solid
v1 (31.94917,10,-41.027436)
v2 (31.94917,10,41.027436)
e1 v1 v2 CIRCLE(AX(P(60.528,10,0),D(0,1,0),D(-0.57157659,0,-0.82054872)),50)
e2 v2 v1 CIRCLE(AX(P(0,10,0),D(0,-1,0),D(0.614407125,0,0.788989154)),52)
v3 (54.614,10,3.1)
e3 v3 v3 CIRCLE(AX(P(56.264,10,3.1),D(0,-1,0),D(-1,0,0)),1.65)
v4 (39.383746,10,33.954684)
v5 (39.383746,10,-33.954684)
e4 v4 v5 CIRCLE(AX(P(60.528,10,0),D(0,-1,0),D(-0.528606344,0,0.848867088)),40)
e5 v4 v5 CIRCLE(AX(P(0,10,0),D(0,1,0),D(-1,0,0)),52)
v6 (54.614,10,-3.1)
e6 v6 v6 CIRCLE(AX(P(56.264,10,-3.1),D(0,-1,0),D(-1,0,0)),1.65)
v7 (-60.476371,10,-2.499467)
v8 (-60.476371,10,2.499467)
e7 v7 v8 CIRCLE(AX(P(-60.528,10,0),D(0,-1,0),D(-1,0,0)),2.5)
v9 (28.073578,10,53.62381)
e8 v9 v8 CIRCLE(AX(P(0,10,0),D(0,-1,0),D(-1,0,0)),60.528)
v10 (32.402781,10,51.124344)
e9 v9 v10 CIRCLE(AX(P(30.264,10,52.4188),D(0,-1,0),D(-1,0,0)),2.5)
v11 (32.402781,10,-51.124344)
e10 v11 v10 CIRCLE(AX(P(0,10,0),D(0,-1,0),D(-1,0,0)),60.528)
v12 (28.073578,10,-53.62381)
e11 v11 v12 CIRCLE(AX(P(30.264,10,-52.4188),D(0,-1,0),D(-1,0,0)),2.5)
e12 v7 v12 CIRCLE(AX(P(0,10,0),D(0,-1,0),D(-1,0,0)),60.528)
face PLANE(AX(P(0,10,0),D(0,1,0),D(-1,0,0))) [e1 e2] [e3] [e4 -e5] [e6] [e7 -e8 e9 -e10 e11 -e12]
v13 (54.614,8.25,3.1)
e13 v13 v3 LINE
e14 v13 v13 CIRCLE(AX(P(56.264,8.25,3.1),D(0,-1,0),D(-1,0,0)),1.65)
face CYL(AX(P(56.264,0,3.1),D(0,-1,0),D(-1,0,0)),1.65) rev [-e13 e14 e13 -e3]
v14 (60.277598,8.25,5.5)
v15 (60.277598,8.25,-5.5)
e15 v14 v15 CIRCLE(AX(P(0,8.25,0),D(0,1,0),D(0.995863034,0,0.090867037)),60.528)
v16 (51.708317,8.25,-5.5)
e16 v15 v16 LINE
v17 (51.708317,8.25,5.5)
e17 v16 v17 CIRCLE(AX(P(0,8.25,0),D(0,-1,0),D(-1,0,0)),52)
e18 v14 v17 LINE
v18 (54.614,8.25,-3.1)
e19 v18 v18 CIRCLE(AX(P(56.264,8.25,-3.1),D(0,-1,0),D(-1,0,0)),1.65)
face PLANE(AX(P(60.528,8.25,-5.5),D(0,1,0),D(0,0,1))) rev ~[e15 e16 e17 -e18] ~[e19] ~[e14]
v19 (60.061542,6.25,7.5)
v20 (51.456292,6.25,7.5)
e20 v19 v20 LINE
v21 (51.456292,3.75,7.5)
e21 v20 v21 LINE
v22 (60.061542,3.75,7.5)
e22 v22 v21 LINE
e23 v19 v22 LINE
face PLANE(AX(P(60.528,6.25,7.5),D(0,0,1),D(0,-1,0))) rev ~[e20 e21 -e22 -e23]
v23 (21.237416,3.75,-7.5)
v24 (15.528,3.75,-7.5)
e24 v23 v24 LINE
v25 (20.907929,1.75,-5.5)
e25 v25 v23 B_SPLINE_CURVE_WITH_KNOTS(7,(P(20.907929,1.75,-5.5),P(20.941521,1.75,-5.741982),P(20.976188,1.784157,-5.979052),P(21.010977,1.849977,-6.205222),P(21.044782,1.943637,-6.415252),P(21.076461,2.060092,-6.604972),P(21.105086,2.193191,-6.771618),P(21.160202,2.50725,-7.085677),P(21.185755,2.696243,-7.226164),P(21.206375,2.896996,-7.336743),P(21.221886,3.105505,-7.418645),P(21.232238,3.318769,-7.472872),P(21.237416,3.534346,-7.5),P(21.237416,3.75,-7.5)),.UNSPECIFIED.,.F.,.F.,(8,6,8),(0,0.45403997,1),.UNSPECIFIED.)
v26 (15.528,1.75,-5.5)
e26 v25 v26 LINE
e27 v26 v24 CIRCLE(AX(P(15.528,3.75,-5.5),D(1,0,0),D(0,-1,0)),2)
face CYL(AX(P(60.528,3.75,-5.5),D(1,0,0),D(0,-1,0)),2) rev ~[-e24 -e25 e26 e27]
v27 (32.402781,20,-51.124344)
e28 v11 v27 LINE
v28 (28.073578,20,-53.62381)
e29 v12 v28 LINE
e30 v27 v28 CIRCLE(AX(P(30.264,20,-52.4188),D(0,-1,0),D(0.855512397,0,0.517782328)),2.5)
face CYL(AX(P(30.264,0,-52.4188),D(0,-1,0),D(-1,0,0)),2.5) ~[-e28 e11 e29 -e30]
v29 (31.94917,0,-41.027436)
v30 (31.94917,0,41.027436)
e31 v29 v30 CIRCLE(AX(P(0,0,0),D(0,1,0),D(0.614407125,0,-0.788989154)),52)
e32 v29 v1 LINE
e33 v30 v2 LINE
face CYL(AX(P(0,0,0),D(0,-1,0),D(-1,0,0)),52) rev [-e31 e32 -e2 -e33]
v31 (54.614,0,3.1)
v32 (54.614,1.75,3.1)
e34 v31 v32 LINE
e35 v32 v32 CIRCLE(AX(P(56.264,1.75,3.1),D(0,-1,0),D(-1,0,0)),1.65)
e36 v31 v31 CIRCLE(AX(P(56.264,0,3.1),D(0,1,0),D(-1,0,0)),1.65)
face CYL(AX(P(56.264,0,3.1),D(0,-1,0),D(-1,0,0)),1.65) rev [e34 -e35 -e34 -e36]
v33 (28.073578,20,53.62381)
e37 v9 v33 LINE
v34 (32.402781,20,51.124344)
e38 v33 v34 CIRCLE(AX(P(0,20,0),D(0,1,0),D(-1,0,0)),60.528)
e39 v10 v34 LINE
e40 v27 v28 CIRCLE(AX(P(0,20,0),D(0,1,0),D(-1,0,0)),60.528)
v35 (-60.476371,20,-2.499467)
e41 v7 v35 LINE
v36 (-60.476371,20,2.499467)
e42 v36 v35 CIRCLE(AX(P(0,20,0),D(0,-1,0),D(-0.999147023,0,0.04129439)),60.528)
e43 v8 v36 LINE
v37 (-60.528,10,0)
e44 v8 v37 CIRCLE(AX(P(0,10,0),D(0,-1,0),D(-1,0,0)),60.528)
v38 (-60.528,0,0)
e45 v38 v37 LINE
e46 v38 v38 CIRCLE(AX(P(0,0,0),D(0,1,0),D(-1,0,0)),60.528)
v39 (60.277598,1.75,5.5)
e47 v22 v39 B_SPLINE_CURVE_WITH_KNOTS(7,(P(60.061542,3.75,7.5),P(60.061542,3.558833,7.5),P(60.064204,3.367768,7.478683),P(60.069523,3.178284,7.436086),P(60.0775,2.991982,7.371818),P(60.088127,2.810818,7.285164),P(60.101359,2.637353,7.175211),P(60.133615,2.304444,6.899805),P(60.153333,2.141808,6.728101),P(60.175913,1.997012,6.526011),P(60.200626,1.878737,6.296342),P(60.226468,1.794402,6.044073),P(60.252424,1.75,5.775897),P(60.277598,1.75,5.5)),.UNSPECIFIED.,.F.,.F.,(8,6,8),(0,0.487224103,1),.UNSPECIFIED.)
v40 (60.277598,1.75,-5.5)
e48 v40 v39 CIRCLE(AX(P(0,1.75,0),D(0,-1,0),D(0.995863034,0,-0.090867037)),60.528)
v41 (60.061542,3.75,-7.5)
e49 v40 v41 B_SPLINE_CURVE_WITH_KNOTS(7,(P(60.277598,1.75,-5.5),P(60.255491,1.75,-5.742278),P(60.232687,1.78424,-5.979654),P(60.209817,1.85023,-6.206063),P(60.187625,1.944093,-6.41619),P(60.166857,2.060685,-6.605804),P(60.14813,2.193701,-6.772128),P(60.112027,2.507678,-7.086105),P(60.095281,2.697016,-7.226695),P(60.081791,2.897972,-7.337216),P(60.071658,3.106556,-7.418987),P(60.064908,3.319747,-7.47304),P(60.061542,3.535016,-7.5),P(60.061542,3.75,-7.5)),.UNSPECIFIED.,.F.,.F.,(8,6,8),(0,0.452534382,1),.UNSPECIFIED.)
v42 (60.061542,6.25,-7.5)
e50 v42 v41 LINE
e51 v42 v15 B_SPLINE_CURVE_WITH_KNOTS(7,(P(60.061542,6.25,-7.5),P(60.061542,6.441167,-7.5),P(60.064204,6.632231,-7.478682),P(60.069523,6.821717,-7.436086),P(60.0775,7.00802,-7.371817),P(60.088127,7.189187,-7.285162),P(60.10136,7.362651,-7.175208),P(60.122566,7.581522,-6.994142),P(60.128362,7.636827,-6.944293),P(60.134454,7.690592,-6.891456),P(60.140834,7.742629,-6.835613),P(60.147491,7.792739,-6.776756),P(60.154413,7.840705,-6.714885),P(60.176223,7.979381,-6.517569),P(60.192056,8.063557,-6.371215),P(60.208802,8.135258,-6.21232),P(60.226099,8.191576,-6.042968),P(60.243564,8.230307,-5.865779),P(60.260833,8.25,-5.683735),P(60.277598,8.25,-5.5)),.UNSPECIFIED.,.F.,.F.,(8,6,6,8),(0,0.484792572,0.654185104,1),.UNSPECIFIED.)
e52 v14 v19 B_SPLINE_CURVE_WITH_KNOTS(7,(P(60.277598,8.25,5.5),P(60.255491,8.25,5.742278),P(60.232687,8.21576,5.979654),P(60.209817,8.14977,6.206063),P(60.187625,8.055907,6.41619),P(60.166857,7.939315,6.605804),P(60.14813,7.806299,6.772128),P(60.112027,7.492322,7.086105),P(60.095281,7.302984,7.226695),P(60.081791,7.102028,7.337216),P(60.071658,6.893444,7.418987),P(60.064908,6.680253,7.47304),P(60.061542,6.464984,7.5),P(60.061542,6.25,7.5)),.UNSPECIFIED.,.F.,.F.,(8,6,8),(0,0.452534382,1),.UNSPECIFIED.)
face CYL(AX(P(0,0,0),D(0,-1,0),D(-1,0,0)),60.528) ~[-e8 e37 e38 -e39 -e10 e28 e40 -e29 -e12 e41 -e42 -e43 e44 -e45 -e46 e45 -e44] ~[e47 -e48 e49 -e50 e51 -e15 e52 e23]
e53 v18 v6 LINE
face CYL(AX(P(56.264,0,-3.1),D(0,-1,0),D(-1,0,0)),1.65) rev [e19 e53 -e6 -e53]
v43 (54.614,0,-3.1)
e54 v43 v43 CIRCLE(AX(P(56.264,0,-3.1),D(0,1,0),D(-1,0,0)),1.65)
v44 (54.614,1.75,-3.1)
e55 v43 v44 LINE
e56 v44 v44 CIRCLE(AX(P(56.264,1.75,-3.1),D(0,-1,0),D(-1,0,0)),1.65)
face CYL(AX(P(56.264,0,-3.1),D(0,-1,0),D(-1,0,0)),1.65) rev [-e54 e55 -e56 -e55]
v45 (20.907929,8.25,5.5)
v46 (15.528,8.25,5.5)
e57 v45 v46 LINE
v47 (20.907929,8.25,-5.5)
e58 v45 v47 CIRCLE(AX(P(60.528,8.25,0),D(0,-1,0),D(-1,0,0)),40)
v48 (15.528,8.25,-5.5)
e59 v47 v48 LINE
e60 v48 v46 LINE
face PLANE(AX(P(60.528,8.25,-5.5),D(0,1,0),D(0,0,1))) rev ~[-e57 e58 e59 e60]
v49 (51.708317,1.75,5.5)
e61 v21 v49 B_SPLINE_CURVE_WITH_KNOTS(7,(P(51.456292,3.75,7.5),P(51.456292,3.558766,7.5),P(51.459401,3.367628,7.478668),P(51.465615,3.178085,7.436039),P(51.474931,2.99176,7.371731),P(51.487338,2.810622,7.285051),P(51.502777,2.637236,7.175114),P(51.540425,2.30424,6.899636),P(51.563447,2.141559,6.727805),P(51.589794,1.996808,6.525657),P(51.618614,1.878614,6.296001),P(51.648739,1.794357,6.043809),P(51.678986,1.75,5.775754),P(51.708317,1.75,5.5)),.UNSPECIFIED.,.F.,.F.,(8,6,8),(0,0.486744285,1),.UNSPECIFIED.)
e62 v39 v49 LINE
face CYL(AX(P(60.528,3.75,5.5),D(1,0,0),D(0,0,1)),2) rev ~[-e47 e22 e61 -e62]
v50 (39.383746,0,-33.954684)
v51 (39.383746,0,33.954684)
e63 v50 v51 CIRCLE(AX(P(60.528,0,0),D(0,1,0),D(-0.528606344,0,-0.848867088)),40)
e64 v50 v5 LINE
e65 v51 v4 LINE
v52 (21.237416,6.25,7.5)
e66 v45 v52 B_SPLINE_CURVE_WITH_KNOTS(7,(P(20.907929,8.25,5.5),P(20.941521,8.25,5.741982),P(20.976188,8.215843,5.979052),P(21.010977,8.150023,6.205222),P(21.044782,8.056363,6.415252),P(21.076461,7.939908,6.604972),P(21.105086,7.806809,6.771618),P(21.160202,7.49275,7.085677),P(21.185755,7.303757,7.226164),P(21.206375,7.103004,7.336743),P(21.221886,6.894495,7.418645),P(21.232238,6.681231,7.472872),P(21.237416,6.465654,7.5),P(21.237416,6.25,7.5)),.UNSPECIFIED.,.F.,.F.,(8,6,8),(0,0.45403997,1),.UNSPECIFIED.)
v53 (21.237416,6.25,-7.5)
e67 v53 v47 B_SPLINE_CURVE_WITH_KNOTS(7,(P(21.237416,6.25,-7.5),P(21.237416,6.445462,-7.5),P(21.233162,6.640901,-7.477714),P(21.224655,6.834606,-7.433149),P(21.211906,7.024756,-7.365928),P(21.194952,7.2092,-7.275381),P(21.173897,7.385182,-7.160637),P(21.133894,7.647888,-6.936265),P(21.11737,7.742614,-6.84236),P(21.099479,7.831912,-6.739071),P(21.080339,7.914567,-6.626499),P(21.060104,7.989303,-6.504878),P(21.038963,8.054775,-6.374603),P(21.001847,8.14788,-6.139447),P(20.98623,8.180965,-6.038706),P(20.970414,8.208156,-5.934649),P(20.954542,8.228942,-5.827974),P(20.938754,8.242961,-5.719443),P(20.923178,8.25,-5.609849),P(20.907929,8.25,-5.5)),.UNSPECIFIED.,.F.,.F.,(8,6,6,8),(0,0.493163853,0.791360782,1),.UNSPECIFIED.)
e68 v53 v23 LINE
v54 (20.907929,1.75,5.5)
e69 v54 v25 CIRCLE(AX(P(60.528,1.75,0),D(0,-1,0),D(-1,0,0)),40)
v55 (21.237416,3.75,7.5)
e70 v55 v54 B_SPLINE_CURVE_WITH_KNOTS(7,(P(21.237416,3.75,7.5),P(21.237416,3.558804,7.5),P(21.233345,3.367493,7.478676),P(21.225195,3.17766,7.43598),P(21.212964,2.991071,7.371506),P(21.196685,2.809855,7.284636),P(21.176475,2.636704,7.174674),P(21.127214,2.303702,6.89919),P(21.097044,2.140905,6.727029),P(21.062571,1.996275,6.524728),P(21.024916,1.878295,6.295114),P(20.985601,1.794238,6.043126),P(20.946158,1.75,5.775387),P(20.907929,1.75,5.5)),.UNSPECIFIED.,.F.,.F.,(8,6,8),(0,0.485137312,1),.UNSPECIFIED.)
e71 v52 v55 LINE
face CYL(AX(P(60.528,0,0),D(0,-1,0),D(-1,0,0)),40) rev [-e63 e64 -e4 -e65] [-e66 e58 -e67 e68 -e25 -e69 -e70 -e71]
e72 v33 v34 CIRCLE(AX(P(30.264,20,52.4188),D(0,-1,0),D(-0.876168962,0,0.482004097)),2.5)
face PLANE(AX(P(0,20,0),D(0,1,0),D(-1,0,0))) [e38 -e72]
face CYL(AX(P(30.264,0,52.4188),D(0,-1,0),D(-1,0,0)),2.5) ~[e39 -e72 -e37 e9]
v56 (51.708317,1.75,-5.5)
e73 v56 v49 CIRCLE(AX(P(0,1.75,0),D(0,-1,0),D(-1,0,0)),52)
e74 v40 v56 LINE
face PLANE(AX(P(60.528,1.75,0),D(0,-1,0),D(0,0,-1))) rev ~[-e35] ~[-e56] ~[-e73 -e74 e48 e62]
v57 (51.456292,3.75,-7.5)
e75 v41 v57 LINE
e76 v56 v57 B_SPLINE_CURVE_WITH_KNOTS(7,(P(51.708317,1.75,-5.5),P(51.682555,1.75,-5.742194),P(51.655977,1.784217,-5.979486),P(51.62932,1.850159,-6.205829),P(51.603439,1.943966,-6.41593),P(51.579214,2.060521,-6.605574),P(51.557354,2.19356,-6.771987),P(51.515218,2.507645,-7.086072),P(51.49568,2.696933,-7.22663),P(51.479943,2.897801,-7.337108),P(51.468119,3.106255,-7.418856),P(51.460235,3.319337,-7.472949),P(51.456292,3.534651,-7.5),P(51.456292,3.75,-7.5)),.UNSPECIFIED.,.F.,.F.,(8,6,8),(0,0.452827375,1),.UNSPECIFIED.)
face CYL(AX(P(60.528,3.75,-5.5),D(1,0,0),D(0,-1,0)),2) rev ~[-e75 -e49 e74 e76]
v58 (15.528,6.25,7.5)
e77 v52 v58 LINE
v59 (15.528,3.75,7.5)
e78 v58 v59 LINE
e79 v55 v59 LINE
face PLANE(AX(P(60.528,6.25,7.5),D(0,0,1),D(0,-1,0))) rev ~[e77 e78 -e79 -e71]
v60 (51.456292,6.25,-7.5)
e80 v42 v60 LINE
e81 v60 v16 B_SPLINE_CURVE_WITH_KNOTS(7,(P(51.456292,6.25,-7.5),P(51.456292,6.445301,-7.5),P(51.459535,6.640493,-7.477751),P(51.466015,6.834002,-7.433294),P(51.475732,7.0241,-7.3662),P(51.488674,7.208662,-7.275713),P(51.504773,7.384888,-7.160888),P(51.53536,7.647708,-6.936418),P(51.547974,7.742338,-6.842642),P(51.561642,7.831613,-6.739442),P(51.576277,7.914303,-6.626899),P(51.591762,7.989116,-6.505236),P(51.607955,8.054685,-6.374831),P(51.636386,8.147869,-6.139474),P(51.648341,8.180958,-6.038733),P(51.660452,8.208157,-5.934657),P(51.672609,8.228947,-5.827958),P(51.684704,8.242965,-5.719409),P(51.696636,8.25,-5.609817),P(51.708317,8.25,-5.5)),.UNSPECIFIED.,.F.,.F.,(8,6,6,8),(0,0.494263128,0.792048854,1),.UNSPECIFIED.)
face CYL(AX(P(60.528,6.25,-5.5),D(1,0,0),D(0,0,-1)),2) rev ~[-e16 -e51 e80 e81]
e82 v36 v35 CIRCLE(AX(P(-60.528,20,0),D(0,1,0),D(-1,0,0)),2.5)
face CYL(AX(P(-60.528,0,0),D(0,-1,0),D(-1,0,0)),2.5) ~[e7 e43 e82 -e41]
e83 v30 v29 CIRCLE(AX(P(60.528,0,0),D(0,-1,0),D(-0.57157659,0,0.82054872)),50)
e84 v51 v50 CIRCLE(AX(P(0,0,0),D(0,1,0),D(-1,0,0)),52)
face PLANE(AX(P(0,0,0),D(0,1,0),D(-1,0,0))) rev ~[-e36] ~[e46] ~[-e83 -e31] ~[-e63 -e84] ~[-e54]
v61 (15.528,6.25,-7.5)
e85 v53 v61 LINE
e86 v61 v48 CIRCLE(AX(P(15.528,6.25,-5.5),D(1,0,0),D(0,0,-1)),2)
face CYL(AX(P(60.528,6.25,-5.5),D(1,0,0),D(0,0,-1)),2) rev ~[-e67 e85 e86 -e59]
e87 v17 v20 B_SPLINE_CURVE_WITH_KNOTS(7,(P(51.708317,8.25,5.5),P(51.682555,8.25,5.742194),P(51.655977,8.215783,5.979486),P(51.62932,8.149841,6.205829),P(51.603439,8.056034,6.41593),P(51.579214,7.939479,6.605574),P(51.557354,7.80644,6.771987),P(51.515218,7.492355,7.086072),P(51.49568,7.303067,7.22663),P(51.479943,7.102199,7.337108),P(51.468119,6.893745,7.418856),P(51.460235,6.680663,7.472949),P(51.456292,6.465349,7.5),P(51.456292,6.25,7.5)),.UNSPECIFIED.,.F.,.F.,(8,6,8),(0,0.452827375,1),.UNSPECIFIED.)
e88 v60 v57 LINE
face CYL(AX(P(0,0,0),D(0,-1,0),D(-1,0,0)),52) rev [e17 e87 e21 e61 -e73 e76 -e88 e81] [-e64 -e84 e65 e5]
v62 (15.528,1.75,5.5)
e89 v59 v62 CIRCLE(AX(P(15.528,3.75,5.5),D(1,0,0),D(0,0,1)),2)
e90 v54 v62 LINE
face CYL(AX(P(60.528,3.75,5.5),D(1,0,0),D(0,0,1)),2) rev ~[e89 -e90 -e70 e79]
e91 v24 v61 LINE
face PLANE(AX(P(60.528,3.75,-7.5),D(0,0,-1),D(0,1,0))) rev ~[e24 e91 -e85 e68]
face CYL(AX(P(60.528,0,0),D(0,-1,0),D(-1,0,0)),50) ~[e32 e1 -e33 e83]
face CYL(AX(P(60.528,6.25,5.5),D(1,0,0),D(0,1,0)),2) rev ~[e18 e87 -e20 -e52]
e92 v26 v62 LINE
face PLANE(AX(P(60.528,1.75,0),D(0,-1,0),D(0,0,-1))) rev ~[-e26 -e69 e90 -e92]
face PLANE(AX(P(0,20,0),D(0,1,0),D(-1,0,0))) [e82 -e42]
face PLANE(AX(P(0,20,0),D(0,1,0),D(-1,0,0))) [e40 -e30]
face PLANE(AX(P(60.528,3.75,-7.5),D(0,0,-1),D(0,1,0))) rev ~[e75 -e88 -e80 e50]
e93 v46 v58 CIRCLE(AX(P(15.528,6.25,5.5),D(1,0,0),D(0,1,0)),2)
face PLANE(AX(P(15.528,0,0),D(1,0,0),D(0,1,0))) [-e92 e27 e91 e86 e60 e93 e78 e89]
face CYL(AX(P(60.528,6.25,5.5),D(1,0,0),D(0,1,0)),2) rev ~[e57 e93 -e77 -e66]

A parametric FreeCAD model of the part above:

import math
import FreeCAD as App
import Part
import Sketcher

V = App.Vector

doc = App.newDocument("Part")
body = doc.addObject("PartDesign::Body", "Body")

# Sketch on XZ plane
sketch1 = body.newObject("Sketcher::SketchObject", "Sketch")
sketch1.AttachmentSupport = (doc.getObject("XZ_Plane"), [""])
sketch1.MapMode = "FlatFace"
sketch1.addGeometry(Part.Circle(V(0, 0, 0), V(0, 0, 1), 60.5), False)
sketch1.addGeometry(Part.ArcOfCircle(Part.Circle(V(60.5, 0, 0), V(0, 0, 1), 50), math.radians(125), math.radians(235)), False)
sketch1.addGeometry(Part.ArcOfCircle(Part.Circle(V(0, 0, 0), V(0, 0, 1), 52), math.radians(52), math.radians(308)), False)
sketch1.addGeometry(Part.Circle(V(56.3, -3.1, 0), V(0, 0, 1), 1.6), False)
sketch1.addGeometry(Part.ArcOfCircle(Part.Circle(V(0, 0, 0), V(0, 0, 1), 52), math.radians(-41), math.radians(41)), False)
sketch1.addGeometry(Part.ArcOfCircle(Part.Circle(V(60.5, 0, 0), V(0, 0, 1), 40), math.radians(122), math.radians(238)), False)
sketch1.addGeometry(Part.Circle(V(56.3, 3.1, 0), V(0, 0, 1), 1.6), False)
sketch1.addConstraint(Sketcher.Constraint("Coincident", 1, 1, 2, 1))
sketch1.addConstraint(Sketcher.Constraint("Coincident", 2, 2, 1, 2))
sketch1.addConstraint(Sketcher.Constraint("Coincident", 4, 1, 5, 2))
sketch1.addConstraint(Sketcher.Constraint("Coincident", 5, 1, 4, 2))
sketch1.addConstraint(Sketcher.Constraint("Coincident", 0, 3, -1, 1))
sketch1.addConstraint(Sketcher.Constraint("Coincident", 2, 3, -1, 1))
sketch1.addConstraint(Sketcher.Constraint("Coincident", 4, 3, -1, 1))
sketch1.addConstraint(Sketcher.Constraint("Coincident", 5, 3, 1, 3))
sketch1.addConstraint(Sketcher.Constraint("Equal", 2, 4))
sketch1.addConstraint(Sketcher.Constraint("Equal", 3, 6))
sketch1.addConstraint(Sketcher.Constraint("Symmetric", 3, 3, 6, 3, -1))
sketch1.addConstraint(Sketcher.Constraint("PointOnObject", 1, 3, -1))
sketch1.addConstraint(Sketcher.Constraint("Radius", 1, 50.0))
sketch1.addConstraint(Sketcher.Constraint("Radius", 2, 52.0))
sketch1.addConstraint(Sketcher.Constraint("Radius", 5, 40.0))
sketch1.addConstraint(Sketcher.Constraint("Diameter", 3, 3.3))
sketch1.addConstraint(Sketcher.Constraint("Diameter", 0, 121.056))
sketch1.addConstraint(Sketcher.Constraint("DistanceY", 3, 3, 6, 3, 6.2))
sketch1.addConstraint(Sketcher.Constraint("DistanceX", -1, 1, 1, 3, 60.528))
sketch1.addConstraint(Sketcher.Constraint("DistanceX", -1, 1, 3, 3, 56.264))
pad1 = body.newObject("PartDesign::Pad", "Pad")
pad1.Profile = sketch1
pad1.Length = 10
pad1.Reversed = True

# Sketch on YZ plane
sketch2 = body.newObject("Sketcher::SketchObject", "Sketch001")
sketch2.AttachmentSupport = (doc.getObject("YZ_Plane"), [""])
sketch2.MapMode = "FlatFace"
sketch2.AttachmentOffset = App.Placement(V(0, 0, 60.528), App.Rotation())
sketch2.addGeometry(Part.LineSegment(V(8.2, -5.5, 0), V(8.2, 5.5, 0)), False)
sketch2.addGeometry(Part.ArcOfCircle(Part.Circle(V(6.2, 5.5, 0), V(0, 0, 1), 2), math.radians(0), math.radians(90)), False)
sketch2.addGeometry(Part.LineSegment(V(6.2, 7.5, 0), V(3.8, 7.5, 0)), False)
sketch2.addGeometry(Part.ArcOfCircle(Part.Circle(V(3.8, 5.5, 0), V(0, 0, 1), 2), math.radians(90), math.radians(180)), False)
sketch2.addGeometry(Part.LineSegment(V(1.8, 5.5, 0), V(1.8, -5.5, 0)), False)
sketch2.addGeometry(Part.ArcOfCircle(Part.Circle(V(3.8, -5.5, 0), V(0, 0, 1), 2), math.radians(180), math.radians(270)), False)
sketch2.addGeometry(Part.LineSegment(V(3.8, -7.5, 0), V(6.2, -7.5, 0)), False)
sketch2.addGeometry(Part.ArcOfCircle(Part.Circle(V(6.2, -5.5, 0), V(0, 0, 1), 2), math.radians(-90), math.radians(0)), False)
sketch2.addConstraint(Sketcher.Constraint("Tangent", 0, 2, 1, 1))
sketch2.addConstraint(Sketcher.Constraint("Tangent", 1, 2, 2, 1))
sketch2.addConstraint(Sketcher.Constraint("Tangent", 2, 2, 3, 1))
sketch2.addConstraint(Sketcher.Constraint("Tangent", 3, 2, 4, 1))
sketch2.addConstraint(Sketcher.Constraint("Tangent", 4, 2, 5, 1))
sketch2.addConstraint(Sketcher.Constraint("Tangent", 5, 2, 6, 1))
sketch2.addConstraint(Sketcher.Constraint("Tangent", 6, 2, 7, 1))
sketch2.addConstraint(Sketcher.Constraint("Tangent", 7, 2, 0, 1))
sketch2.addConstraint(Sketcher.Constraint("Vertical", 0))
sketch2.addConstraint(Sketcher.Constraint("Horizontal", 2))
sketch2.addConstraint(Sketcher.Constraint("Vertical", 4))
sketch2.addConstraint(Sketcher.Constraint("Horizontal", 6))
sketch2.addConstraint(Sketcher.Constraint("Equal", 1, 3))
sketch2.addConstraint(Sketcher.Constraint("Equal", 3, 5))
sketch2.addConstraint(Sketcher.Constraint("Equal", 5, 7))
sketch2.addConstraint(Sketcher.Constraint("Radius", 1, 2.0))
sketch2.addConstraint(Sketcher.Constraint("DistanceX", 3, 2, 0, 2, 6.5))
sketch2.addConstraint(Sketcher.Constraint("DistanceY", 0, 1, 0, 2, 11.0))
sketch2.addConstraint(Sketcher.Constraint("DistanceY", -1, 1, 1, 3, 5.5))
sketch2.addConstraint(Sketcher.Constraint("DistanceX", -1, 1, 1, 3, 6.25))
pocket1 = body.newObject("PartDesign::Pocket", "Pocket")
pocket1.Profile = sketch2
pocket1.Length = 45

# Sketch on XZ plane
sketch3 = body.newObject("Sketcher::SketchObject", "Sketch002")
sketch3.AttachmentSupport = (doc.getObject("XZ_Plane"), [""])
sketch3.MapMode = "FlatFace"
sketch3.addGeometry(Part.ArcOfCircle(Part.Circle(V(0, 0, 0), V(0, 0, 1), 60.5), math.radians(177.63), math.radians(182.37)), False)
sketch3.addGeometry(Part.ArcOfCircle(Part.Circle(V(-60.5, 0, 0), V(0, 0, 1), 2.5), math.radians(-89), math.radians(89)), False)
sketch3.addGeometry(Part.ArcOfCircle(Part.Circle(V(30.3, 52.4, 0), V(0, 0, 1), 2.5), math.radians(151), math.radians(329)), False)
sketch3.addGeometry(Part.ArcOfCircle(Part.Circle(V(0, 0, 0), V(0, 0, 1), 60.5), math.radians(57.63), math.radians(62.37)), False)
sketch3.addGeometry(Part.ArcOfCircle(Part.Circle(V(0, 0, 0), V(0, 0, 1), 60.5), math.radians(-62.37), math.radians(-57.63)), False)
sketch3.addGeometry(Part.ArcOfCircle(Part.Circle(V(30.3, -52.4, 0), V(0, 0, 1), 2.5), math.radians(31), math.radians(209)), False)
sketch3.addConstraint(Sketcher.Constraint("Coincident", 0, 1, 1, 2))
sketch3.addConstraint(Sketcher.Constraint("Coincident", 1, 1, 0, 2))
sketch3.addConstraint(Sketcher.Constraint("Coincident", 2, 1, 3, 2))
sketch3.addConstraint(Sketcher.Constraint("Coincident", 3, 1, 2, 2))
sketch3.addConstraint(Sketcher.Constraint("Coincident", 4, 1, 5, 2))
sketch3.addConstraint(Sketcher.Constraint("Coincident", 5, 1, 4, 2))
sketch3.addConstraint(Sketcher.Constraint("Coincident", 0, 3, -1, 1))
sketch3.addConstraint(Sketcher.Constraint("Coincident", 3, 3, -1, 1))
sketch3.addConstraint(Sketcher.Constraint("Coincident", 4, 3, -1, 1))
sketch3.addConstraint(Sketcher.Constraint("Equal", 1, 2))
sketch3.addConstraint(Sketcher.Constraint("Equal", 0, 3))
sketch3.addConstraint(Sketcher.Constraint("Equal", 3, 4))
sketch3.addConstraint(Sketcher.Constraint("Equal", 2, 5))
sketch3.addConstraint(Sketcher.Constraint("Symmetric", 2, 3, 5, 3, -1))
sketch3.addConstraint(Sketcher.Constraint("PointOnObject", 1, 3, -1))
sketch3.addConstraint(Sketcher.Constraint("Radius", 1, 2.5))
sketch3.addConstraint(Sketcher.Constraint("Radius", 0, 60.528))
sketch3.addConstraint(Sketcher.Constraint("DistanceX", 1, 3, -1, 1, 60.528))
sketch3.addConstraint(Sketcher.Constraint("DistanceX", 0, 1, 2, 1, 88.55))
sketch3.addConstraint(Sketcher.Constraint("DistanceX", -1, 1, 2, 3, 30.264))
pad2 = body.newObject("PartDesign::Pad", "Pad001")
pad2.Profile = sketch3
pad2.Length = 20
pad2.Reversed = True

doc.recompute()
